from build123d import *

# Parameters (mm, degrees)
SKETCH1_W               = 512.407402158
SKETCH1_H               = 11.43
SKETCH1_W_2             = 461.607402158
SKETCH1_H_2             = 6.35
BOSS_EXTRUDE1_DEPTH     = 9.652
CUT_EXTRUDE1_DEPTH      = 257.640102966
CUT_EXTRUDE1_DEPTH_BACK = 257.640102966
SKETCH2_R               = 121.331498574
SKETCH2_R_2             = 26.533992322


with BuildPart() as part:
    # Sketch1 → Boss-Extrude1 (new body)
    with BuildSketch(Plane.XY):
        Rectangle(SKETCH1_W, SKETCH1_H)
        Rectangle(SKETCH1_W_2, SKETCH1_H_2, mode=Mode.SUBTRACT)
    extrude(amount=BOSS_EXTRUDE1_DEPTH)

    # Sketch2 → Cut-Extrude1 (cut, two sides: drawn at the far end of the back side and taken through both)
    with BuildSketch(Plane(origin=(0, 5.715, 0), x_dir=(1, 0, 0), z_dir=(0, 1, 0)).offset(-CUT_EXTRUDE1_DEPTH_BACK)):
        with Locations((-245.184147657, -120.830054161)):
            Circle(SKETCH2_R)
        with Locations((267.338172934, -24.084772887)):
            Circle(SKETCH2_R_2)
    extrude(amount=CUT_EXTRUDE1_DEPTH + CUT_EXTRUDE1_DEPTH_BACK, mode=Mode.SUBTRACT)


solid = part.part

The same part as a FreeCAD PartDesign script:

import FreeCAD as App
import Part
import Sketcher
from FreeCAD import Vector
Q = App.Units.Quantity

doc = App.newDocument("Part")
body = doc.addObject("PartDesign::Body", "Body")

# Sketch on XY plane
sketch1 = body.newObject("Sketcher::SketchObject", "Sketch")
sketch1.AttachmentSupport = (doc.getObject("XY_Plane"), [""])
sketch1.MapMode = "FlatFace"
sketch1.addGeometry(Part.LineSegment(Vector(-256, 6, 0), Vector(-256, -6, 0)), False)
sketch1.addGeometry(Part.LineSegment(Vector(-256, -6, 0), Vector(256, -6, 0)), False)
sketch1.addGeometry(Part.LineSegment(Vector(256, -6, 0), Vector(256, 6, 0)), False)
sketch1.addGeometry(Part.LineSegment(Vector(256, 6, 0), Vector(-256, 6, 0)), False)
sketch1.addGeometry(Part.LineSegment(Vector(231, -3, 0), Vector(-231, -3, 0)), False)
sketch1.addGeometry(Part.LineSegment(Vector(-231, -3, 0), Vector(-231, 3, 0)), False)
sketch1.addGeometry(Part.LineSegment(Vector(-231, 3, 0), Vector(231, 3, 0)), False)
sketch1.addGeometry(Part.LineSegment(Vector(231, 3, 0), Vector(231, -3, 0)), False)
sketch1.addConstraint(Sketcher.Constraint("Coincident", 0, 2, 1, 1))
sketch1.addConstraint(Sketcher.Constraint("Coincident", 1, 2, 2, 1))
sketch1.addConstraint(Sketcher.Constraint("Coincident", 2, 2, 3, 1))
sketch1.addConstraint(Sketcher.Constraint("Coincident", 3, 2, 0, 1))
sketch1.addConstraint(Sketcher.Constraint("Coincident", 4, 2, 5, 1))
sketch1.addConstraint(Sketcher.Constraint("Coincident", 5, 2, 6, 1))
sketch1.addConstraint(Sketcher.Constraint("Coincident", 6, 2, 7, 1))
sketch1.addConstraint(Sketcher.Constraint("Coincident", 7, 2, 4, 1))
sketch1.addConstraint(Sketcher.Constraint("Vertical", 0))
sketch1.addConstraint(Sketcher.Constraint("Horizontal", 1))
sketch1.addConstraint(Sketcher.Constraint("Vertical", 2))
sketch1.addConstraint(Sketcher.Constraint("Horizontal", 3))
sketch1.addConstraint(Sketcher.Constraint("Horizontal", 4))
sketch1.addConstraint(Sketcher.Constraint("Vertical", 5))
sketch1.addConstraint(Sketcher.Constraint("Horizontal", 6))
sketch1.addConstraint(Sketcher.Constraint("Vertical", 7))
sketch1.addConstraint(Sketcher.Constraint("Symmetric", 0, 2, 2, 2, -1, 1))
sketch1.addConstraint(Sketcher.Constraint("Symmetric", 4, 2, 6, 2, -1, 1))
sketch1.addConstraint(Sketcher.Constraint("DistanceX", 0, 2, 4, 2, Q("1 in")))
sketch1.addConstraint(Sketcher.Constraint("DistanceY", 0, 2, 0, 1, Q("0.45 in")))
sketch1.addConstraint(Sketcher.Constraint("DistanceY", 5, 1, 5, 2, Q("0.25 in")))
sketch1.addConstraint(Sketcher.Constraint("DistanceX", 0, 2, -1, 1, Q("256.203701 mm")))
pad1 = body.newObject("PartDesign::Pad", "Pad")
pad1.Profile = sketch1
pad1.Length = Q("0.38 in")

# Sketch on XZ plane
sketch2 = body.newObject("Sketcher::SketchObject", "Sketch001")
sketch2.AttachmentSupport = (doc.getObject("XZ_Plane"), [""])
sketch2.MapMode = "FlatFace"
sketch2.AttachmentOffset = App.Placement(Vector(0, 0, -0.225 * 25.4), App.Rotation())
sketch2.addGeometry(Part.Circle(Vector(-245, 121, 0), Vector(0, 0, 1), 121), False)
sketch2.addGeometry(Part.Circle(Vector(267, 24, 0), Vector(0, 0, 1), 27), False)
sketch2.addConstraint(Sketcher.Constraint("Diameter", 0, Q("242.662997 mm")))
sketch2.addConstraint(Sketcher.Constraint("Diameter", 1, Q("53.067985 mm")))
sketch2.addConstraint(Sketcher.Constraint("DistanceX", 0, 3, 1, 3, Q("512.522321 mm")))
sketch2.addConstraint(Sketcher.Constraint("DistanceY", 1, 3, 0, 3, Q("96.745281 mm")))
sketch2.addConstraint(Sketcher.Constraint("DistanceX", 0, 3, -1, 1, Q("245.184148 mm")))
sketch2.addConstraint(Sketcher.Constraint("DistanceY", -1, 1, 0, 3, Q("120.830054 mm")))
pocket1 = body.newObject("PartDesign::Pocket", "Pocket")
pocket1.Profile = sketch2
pocket1.Type = "ThroughAll"
pocket1.Midplane = True

doc.recompute()
